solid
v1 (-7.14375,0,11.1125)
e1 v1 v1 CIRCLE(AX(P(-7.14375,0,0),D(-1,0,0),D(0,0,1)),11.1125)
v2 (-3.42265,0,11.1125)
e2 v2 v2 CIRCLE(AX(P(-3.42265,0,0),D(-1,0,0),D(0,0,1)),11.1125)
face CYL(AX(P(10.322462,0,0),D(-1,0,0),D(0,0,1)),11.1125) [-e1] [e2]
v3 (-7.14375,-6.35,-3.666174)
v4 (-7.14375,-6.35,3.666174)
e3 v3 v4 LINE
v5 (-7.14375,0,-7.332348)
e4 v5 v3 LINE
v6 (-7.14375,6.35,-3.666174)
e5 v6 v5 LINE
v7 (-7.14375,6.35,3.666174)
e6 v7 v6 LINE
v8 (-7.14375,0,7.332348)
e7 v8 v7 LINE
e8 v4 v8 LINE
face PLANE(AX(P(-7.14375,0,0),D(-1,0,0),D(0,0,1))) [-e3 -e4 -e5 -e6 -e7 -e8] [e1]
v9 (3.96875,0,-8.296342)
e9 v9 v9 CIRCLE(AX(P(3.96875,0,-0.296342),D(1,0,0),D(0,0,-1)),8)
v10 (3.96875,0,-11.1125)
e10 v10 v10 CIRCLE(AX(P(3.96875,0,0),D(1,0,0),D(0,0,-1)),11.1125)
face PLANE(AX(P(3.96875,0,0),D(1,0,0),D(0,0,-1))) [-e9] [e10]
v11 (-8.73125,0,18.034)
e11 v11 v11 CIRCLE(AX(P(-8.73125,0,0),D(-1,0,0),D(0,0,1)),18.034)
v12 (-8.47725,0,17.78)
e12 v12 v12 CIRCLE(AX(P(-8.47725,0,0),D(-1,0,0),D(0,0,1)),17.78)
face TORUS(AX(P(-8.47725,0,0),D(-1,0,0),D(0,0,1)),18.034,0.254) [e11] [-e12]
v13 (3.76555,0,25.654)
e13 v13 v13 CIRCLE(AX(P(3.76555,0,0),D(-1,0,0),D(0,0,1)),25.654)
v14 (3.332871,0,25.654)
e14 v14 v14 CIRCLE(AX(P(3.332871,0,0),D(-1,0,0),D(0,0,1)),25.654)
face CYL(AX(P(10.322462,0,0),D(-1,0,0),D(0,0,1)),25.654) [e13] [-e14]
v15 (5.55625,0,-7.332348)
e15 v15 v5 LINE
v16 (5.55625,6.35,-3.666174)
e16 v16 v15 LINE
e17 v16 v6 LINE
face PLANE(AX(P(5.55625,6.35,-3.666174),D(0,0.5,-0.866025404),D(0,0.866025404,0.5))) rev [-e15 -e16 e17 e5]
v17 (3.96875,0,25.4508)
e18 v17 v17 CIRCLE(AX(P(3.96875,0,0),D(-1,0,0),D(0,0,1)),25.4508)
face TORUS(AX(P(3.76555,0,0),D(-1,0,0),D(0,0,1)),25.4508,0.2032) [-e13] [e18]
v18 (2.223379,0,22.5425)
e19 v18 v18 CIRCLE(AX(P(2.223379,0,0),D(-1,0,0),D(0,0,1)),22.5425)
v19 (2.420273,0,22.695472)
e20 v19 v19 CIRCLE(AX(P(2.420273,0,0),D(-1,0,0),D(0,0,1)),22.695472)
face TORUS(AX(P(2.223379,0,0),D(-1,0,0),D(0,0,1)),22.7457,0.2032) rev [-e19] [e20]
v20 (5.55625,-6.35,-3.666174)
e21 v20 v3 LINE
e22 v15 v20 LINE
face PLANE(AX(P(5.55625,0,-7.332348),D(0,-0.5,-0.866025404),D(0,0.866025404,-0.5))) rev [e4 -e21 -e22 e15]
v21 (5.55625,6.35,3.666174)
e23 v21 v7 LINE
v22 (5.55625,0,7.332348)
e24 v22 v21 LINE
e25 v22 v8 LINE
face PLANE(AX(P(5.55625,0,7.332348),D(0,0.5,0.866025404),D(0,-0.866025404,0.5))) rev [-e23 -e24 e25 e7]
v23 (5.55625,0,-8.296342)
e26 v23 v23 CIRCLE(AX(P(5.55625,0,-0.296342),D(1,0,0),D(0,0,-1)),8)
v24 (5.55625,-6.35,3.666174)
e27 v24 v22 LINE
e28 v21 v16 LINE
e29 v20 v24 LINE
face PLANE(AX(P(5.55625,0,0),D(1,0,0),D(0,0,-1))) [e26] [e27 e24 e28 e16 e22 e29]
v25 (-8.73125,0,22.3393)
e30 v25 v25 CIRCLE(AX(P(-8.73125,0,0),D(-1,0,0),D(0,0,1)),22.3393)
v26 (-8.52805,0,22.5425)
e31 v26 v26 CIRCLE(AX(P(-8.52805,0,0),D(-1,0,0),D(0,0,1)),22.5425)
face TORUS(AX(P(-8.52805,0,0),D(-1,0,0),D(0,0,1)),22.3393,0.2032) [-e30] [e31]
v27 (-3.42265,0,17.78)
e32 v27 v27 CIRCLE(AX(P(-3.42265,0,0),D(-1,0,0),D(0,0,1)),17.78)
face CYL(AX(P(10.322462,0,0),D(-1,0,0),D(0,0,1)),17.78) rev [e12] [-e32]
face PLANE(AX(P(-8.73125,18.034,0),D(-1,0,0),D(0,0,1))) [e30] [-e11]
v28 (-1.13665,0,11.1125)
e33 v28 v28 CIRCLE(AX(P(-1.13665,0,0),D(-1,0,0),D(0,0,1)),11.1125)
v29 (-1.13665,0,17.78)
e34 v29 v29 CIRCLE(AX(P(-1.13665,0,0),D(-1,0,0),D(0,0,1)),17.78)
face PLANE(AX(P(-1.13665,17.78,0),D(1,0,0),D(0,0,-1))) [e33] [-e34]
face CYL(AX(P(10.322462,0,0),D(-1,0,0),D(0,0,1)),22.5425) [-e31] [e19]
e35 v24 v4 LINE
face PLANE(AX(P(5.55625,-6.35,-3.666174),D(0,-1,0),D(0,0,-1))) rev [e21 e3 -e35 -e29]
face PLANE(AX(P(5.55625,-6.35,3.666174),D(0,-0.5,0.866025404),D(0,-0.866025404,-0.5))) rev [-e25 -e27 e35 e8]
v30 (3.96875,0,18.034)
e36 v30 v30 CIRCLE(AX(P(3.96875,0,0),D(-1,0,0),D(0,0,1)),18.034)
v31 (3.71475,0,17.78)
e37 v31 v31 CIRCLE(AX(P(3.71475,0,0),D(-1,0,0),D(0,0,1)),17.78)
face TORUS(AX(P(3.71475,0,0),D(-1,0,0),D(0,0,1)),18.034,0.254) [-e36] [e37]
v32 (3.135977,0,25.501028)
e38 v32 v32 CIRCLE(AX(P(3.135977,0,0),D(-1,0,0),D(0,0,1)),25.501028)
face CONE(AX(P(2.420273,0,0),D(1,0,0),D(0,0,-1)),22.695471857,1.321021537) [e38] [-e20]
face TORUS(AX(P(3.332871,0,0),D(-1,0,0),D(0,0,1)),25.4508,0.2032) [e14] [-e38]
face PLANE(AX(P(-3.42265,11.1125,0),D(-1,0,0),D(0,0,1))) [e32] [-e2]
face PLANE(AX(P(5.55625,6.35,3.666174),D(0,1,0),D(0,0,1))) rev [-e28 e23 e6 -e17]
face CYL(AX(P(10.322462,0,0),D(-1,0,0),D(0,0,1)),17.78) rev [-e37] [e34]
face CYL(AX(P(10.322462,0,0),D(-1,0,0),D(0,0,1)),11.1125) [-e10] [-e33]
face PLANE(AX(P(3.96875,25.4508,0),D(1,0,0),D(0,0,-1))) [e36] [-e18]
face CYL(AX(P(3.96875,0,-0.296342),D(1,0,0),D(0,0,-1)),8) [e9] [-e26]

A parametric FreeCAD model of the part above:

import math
import FreeCAD as App
import Part
import Sketcher
from FreeCAD import Vector
Q = App.Units.Quantity

doc = App.newDocument("Part")
body = doc.addObject("PartDesign::Body", "Body")

# Sketch on XY plane
sketch1 = body.newObject("Sketcher::SketchObject", "Sketch")
sketch1.AttachmentSupport = (doc.getObject("XY_Plane"), [""])
sketch1.MapMode = "FlatFace"
sketch1.addGeometry([
    Part.LineSegment(Vector(-8.48, 11.11, 0), Vector(-3.42, 11.11, 0)),  # 0
    Part.LineSegment(Vector(-3.42, 11.11, 0), Vector(-3.42, 17.78, 0)),  # 1
    Part.LineSegment(Vector(-3.42, 17.78, 0), Vector(-8.48, 17.78, 0)),  # 2
    Part.ArcOfCircle(Part.Circle(Vector(-8.48, 18.03, 0), Vector(0, 0, 1), 0.25), math.radians(-180), math.radians(-90)),  # 3
    Part.LineSegment(Vector(-8.73, 18.03, 0), Vector(-8.73, 22.34, 0)),  # 4
    Part.ArcOfCircle(Part.Circle(Vector(-8.53, 22.34, 0), Vector(0, 0, 1), 0.2), math.radians(90), math.radians(180)),  # 5
    Part.LineSegment(Vector(-8.53, 22.54, 0), Vector(2.22, 22.54, 0)),  # 6
    Part.ArcOfCircle(Part.Circle(Vector(2.22, 22.75, 0), Vector(0, 0, 1), 0.2), math.radians(-90), math.radians(-14)),  # 7
    Part.LineSegment(Vector(2.42, 22.7, 0), Vector(3.14, 25.5, 0)),  # 8
    Part.ArcOfCircle(Part.Circle(Vector(3.33, 25.45, 0), Vector(0, 0, 1), 0.2), math.radians(90), math.radians(166)),  # 9
    Part.LineSegment(Vector(3.33, 25.65, 0), Vector(3.77, 25.65, 0)),  # 10
    Part.ArcOfCircle(Part.Circle(Vector(3.77, 25.45, 0), Vector(0, 0, 1), 0.2), math.radians(0), math.radians(90)),  # 11
    Part.LineSegment(Vector(3.97, 25.45, 0), Vector(3.97, 18.03, 0)),  # 12
    Part.ArcOfCircle(Part.Circle(Vector(3.71, 18.03, 0), Vector(0, 0, 1), 0.25), math.radians(-90), math.radians(0)),  # 13
    Part.LineSegment(Vector(3.71, 17.78, 0), Vector(-1.14, 17.78, 0)),  # 14
    Part.LineSegment(Vector(-1.14, 17.78, 0), Vector(-1.14, 11.11, 0)),  # 15
    Part.LineSegment(Vector(-1.14, 11.11, 0), Vector(10.12, 11.11, 0)),  # 16
    Part.ArcOfCircle(Part.Circle(Vector(10.12, 10.91, 0), Vector(0, 0, 1), 0.2), math.radians(0), math.radians(90)),  # 17
    Part.LineSegment(Vector(10.32, 10.91, 0), Vector(10.32, 3.38, 0)),  # 18
    Part.ArcOfCircle(Part.Circle(Vector(10.12, 3.38, 0), Vector(0, 0, 1), 0.2), math.radians(-90), math.radians(0)),  # 19
    Part.LineSegment(Vector(10.12, 3.17, 0), Vector(-10.12, 3.17, 0)),  # 20
    Part.ArcOfCircle(Part.Circle(Vector(-10.12, 3.38, 0), Vector(0, 0, 1), 0.2), math.radians(180), math.radians(270)),  # 21
    Part.LineSegment(Vector(-10.32, 3.38, 0), Vector(-10.32, 4.56, 0)),  # 22
    Part.ArcOfCircle(Part.Circle(Vector(-10.12, 4.56, 0), Vector(0, 0, 1), 0.2), math.radians(90), math.radians(180)),  # 23
    Part.LineSegment(Vector(-10.12, 4.76, 0), Vector(-8.73, 4.76, 0)),  # 24
    Part.LineSegment(Vector(-8.73, 4.76, 0), Vector(-8.73, 10.86, 0)),  # 25
    Part.ArcOfCircle(Part.Circle(Vector(-8.48, 10.86, 0), Vector(0, 0, 1), 0.25), math.radians(90), math.radians(180)),  # 26
], False)
sketch1.addConstraint([
    Sketcher.Constraint("Coincident", 0, 2, 1, 1),
    Sketcher.Constraint("Coincident", 1, 2, 2, 1),
    Sketcher.Constraint("Tangent", 2, 2, 3, 2),
    Sketcher.Constraint("Tangent", 3, 1, 4, 1),
    Sketcher.Constraint("Tangent", 4, 2, 5, 2),
    Sketcher.Constraint("Tangent", 5, 1, 6, 1),
    Sketcher.Constraint("Tangent", 6, 2, 7, 1),
    Sketcher.Constraint("Tangent", 7, 2, 8, 1),
    Sketcher.Constraint("Tangent", 8, 2, 9, 2),
    Sketcher.Constraint("Tangent", 9, 1, 10, 1),
    Sketcher.Constraint("Tangent", 10, 2, 11, 2),
    Sketcher.Constraint("Tangent", 11, 1, 12, 1),
    Sketcher.Constraint("Tangent", 12, 2, 13, 2),
    Sketcher.Constraint("Tangent", 13, 1, 14, 1),
    Sketcher.Constraint("Coincident", 14, 2, 15, 1),
    Sketcher.Constraint("Coincident", 15, 2, 16, 1),
    Sketcher.Constraint("Tangent", 16, 2, 17, 2),
    Sketcher.Constraint("Tangent", 17, 1, 18, 1),
    Sketcher.Constraint("Tangent", 18, 2, 19, 2),
    Sketcher.Constraint("Tangent", 19, 1, 20, 1),
    Sketcher.Constraint("Tangent", 20, 2, 21, 2),
    Sketcher.Constraint("Tangent", 21, 1, 22, 1),
    Sketcher.Constraint("Tangent", 22, 2, 23, 2),
    Sketcher.Constraint("Tangent", 23, 1, 24, 1),
    Sketcher.Constraint("Coincident", 24, 2, 25, 1),
    Sketcher.Constraint("Tangent", 25, 2, 26, 2),
    Sketcher.Constraint("Tangent", 26, 1, 0, 1),
    Sketcher.Constraint("Horizontal", 0),
    Sketcher.Constraint("Vertical", 1),
    Sketcher.Constraint("Horizontal", 2),
    Sketcher.Constraint("Vertical", 4),
    Sketcher.Constraint("Horizontal", 6),
    Sketcher.Constraint("Horizontal", 10),
    Sketcher.Constraint("Vertical", 12),
    Sketcher.Constraint("Horizontal", 14),
    Sketcher.Constraint("Vertical", 15),
    Sketcher.Constraint("Horizontal", 16),
    Sketcher.Constraint("Vertical", 18),
    Sketcher.Constraint("Horizontal", 20),
    Sketcher.Constraint("Vertical", 22),
    Sketcher.Constraint("Horizontal", 24),
    Sketcher.Constraint("Vertical", 25),
    Sketcher.Constraint("Equal", 5, 7),
    Sketcher.Constraint("Equal", 7, 9),
    Sketcher.Constraint("Equal", 9, 11),
    Sketcher.Constraint("Equal", 3, 13),
    Sketcher.Constraint("Equal", 11, 17),
    Sketcher.Constraint("Equal", 17, 19),
    Sketcher.Constraint("Equal", 19, 21),
    Sketcher.Constraint("Equal", 21, 23),
    Sketcher.Constraint("Equal", 13, 26),
    Sketcher.Constraint("Horizontal", 3, 3, 13, 3),
    Sketcher.Constraint("Horizontal", 0, 2, 15, 2),
    Sketcher.Constraint("Vertical", 3, 3, 26, 3),
    Sketcher.Constraint("Radius", 3, Q("0.01 in")),
    Sketcher.Constraint("Radius", 5, Q("0.008 in")),
    Sketcher.Constraint("DistanceY", 25, 1, 25, 2, Q("0.24 in")),
    Sketcher.Constraint("DistanceY", -1, 1, 1, 2, Q("0.7 in")),
    Sketcher.Constraint("DistanceY", 23, 3, 5, 3, Q("0.7 in")),
    Sketcher.Constraint("DistanceX", 0, 1, 0, 2, Q("0.199 in")),
    Sketcher.Constraint("DistanceX", 14, 2, 14, 1, Q("0.191 in")),
    Sketcher.Constraint("DistanceX", 16, 1, 16, 2, Q("0.443 in")),
    Sketcher.Constraint("DistanceY", 12, 2, 12, 1, Q("0.292 in")),
    Sketcher.Constraint("DistanceX", 3, 3, 13, 3, Q("0.48 in")),
    Sketcher.Constraint("DistanceX", 20, 2, 20, 1, Q("0.7965 in")),
    Sketcher.Constraint("DistanceY", 1, 1, 1, 2, Q("0.2625 in")),
    Sketcher.Constraint("DistanceY", 18, 2, 18, 1, Q("0.2965 in")),
    Sketcher.Constraint("DistanceX", 3, 1, -1, 1, Q("0.34375 in")),
    Sketcher.Constraint("DistanceX", 6, 1, 6, 2, 10.751429),
    Sketcher.Constraint("DistanceX", 10, 1, 10, 2, 0.432679),
])
revolution = body.newObject("PartDesign::Revolution", "Revolution")
revolution.Profile = sketch1
revolution.ReferenceAxis = (sketch1, ["H_Axis"])
revolution.Angle = 360

# Sketch on YZ plane
sketch2 = body.newObject("Sketcher::SketchObject", "Sketch001")
sketch2.AttachmentSupport = (doc.getObject("YZ_Plane"), [""])
sketch2.MapMode = "FlatFace"
sketch2.AttachmentOffset = App.Placement(Vector(0, 0, 0.40625 * 25.4), App.Rotation())
sketch2.addGeometry(Part.Circle(Vector(0, 0, 0), Vector(0, 0, 1), 11), False)
sketch2.addConstraint([
    Sketcher.Constraint("Coincident", 0, 3, -1, 1),
    Sketcher.Constraint("Diameter", 0, Q("0.875 in")),
])
pocket1 = body.newObject("PartDesign::Pocket", "Pocket")
pocket1.Profile = sketch2
pocket1.Length = Q("0.1875 in")

# Sketch on YZ plane
sketch3 = body.newObject("Sketcher::SketchObject", "Sketch002")
sketch3.AttachmentSupport = (doc.getObject("YZ_Plane"), [""])
sketch3.MapMode = "FlatFace"
sketch3.AttachmentOffset = App.Placement(Vector(0, 0, -0.28125 * 25.4), App.Rotation())
sketch3.addGeometry(Part.Circle(Vector(0, 0, 0), Vector(0, 0, 1), 11), False)
sketch3.addConstraint([
    Sketcher.Constraint("Coincident", 0, 3, -1, 1),
    Sketcher.Constraint("Diameter", 0, Q("0.875 in")),
])
pocket2 = body.newObject("PartDesign::Pocket", "Pocket001")
pocket2.Profile = sketch3
pocket2.Length = Q("0.125 in")

# Sketch on YZ plane
sketch4 = body.newObject("Sketcher::SketchObject", "Sketch003")
sketch4.AttachmentSupport = (doc.getObject("YZ_Plane"), [""])
sketch4.MapMode = "FlatFace"
sketch4.AttachmentOffset = App.Placement(Vector(0, 0, -0.28125 * 25.4), App.Rotation())
sketch4.addGeometry([
    Part.LineSegment(Vector(6, 4, 0), Vector(6, -4, 0)),  # 0
    Part.LineSegment(Vector(6, -4, 0), Vector(0, -7, 0)),  # 1
    Part.LineSegment(Vector(0, -7, 0), Vector(-6, -4, 0)),  # 2
    Part.LineSegment(Vector(-6, -4, 0), Vector(-6, 4, 0)),  # 3
    Part.LineSegment(Vector(-6, 4, 0), Vector(0, 7, 0)),  # 4
    Part.LineSegment(Vector(0, 7, 0), Vector(6, 4, 0)),  # 5
], False)
sketch4.addConstraint([
    Sketcher.Constraint("Coincident", 0, 2, 1, 1),
    Sketcher.Constraint("Coincident", 1, 2, 2, 1),
    Sketcher.Constraint("Coincident", 2, 2, 3, 1),
    Sketcher.Constraint("Coincident", 3, 2, 4, 1),
    Sketcher.Constraint("Coincident", 4, 2, 5, 1),
    Sketcher.Constraint("Coincident", 5, 2, 0, 1),
    Sketcher.Constraint("Vertical", 0),
    Sketcher.Constraint("Vertical", 3),
    Sketcher.Constraint("Symmetric", 0, 2, 3, 2, -1, 1),
    Sketcher.Constraint("Symmetric", 1, 2, 4, 2, -1, 1),
    Sketcher.Constraint("PointOnObject", 1, 2, -2),
    Sketcher.Constraint("Parallel", 2, 5),
    Sketcher.Constraint("Horizontal", 0, 2, 2, 2),
    Sketcher.Constraint("Angle", 1, Q("-150 deg")),
    Sketcher.Constraint("DistanceX", 2, 2, 0, 2, Q("0.5 in")),
    Sketcher.Constraint("DistanceY", 0, 2, 0, 1, 7.332348),
])
pocket3 = body.newObject("PartDesign::Pocket", "Pocket002")
pocket3.Profile = sketch4
pocket3.Type = "ThroughAll"
pocket3.Reversed = True

# Sketch on YZ plane
sketch5 = body.newObject("Sketcher::SketchObject", "Sketch004")
sketch5.AttachmentSupport = (doc.getObject("YZ_Plane"), [""])
sketch5.MapMode = "FlatFace"
sketch5.AttachmentOffset = App.Placement(Vector(0, 0, 0.21875 * 25.4), App.Rotation())
sketch5.addGeometry([
    Part.Circle(Vector(0, 0, 0), Vector(0, 0, 1), 11),
    Part.Circle(Vector(0, 0, 0), Vector(0, 0, 1), 8),
], False)
sketch5.addConstraint([
    Sketcher.Constraint("Coincident", 0, 3, -1, 1),
    Sketcher.Constraint("PointOnObject", 1, 3, -2),
    Sketcher.Constraint("Diameter", 0, Q("0.875 in")),
    Sketcher.Constraint("Diameter", 1, 16.0),
    Sketcher.Constraint("DistanceY", 1, 3, -1, 1, 0.296342),
])
pocket4 = body.newObject("PartDesign::Pocket", "Pocket003")
pocket4.Profile = sketch5
pocket4.Length = Q("0.0625 in")

doc.recompute()
